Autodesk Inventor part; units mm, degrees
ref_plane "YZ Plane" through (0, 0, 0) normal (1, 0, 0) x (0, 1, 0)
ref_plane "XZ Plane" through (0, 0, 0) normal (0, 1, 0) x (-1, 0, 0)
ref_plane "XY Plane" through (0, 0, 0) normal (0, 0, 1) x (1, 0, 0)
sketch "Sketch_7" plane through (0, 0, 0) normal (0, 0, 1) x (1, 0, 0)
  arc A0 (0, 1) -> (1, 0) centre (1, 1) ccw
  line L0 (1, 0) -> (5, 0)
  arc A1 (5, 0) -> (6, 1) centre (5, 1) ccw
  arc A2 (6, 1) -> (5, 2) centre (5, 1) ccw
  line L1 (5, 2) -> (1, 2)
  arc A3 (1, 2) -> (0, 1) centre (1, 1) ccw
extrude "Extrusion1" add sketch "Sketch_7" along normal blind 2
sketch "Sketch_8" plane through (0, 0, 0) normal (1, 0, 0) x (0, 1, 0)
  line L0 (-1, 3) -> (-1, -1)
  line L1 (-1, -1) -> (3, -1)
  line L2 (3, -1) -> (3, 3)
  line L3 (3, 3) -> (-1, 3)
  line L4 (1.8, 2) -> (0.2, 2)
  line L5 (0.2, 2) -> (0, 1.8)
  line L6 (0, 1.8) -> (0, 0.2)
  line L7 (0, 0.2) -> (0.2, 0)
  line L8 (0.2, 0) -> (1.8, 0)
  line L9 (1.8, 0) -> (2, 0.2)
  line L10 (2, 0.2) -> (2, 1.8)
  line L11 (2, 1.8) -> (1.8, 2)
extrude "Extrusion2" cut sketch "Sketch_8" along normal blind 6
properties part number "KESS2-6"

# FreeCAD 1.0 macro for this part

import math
import FreeCAD as App
import Part
import Sketcher

V = App.Vector


def add_polygon(sketch, points):
    """Adds a closed chain of lines whose ends are joined by coincident constraints."""
    first, n = sketch.GeometryCount, len(points)
    for a, b in zip(points, points[1:] + points[:1]):
        sketch.addGeometry(Part.LineSegment(App.Vector(*a, 0), App.Vector(*b, 0)), False)
    for i in range(n):
        sketch.addConstraint(Sketcher.Constraint("Coincident", first + i, 2, first + (i + 1) % n, 1))

doc = App.newDocument("Part")
body = doc.addObject("PartDesign::Body", "Body")

# Sketch on XY plane
sketch1 = body.newObject("Sketcher::SketchObject", "Sketch")
sketch1.AttachmentSupport = (doc.getObject("XY_Plane"), [""])
sketch1.MapMode = "FlatFace"
sketch1.addGeometry([
    Part.ArcOfCircle(Part.Circle(V(1, 1, 0), V(0, 0, 1), 1), math.radians(90), math.radians(270)),
    Part.LineSegment(V(1, 0, 0), V(5, 0, 0)),
    Part.ArcOfCircle(Part.Circle(V(5, 1, 0), V(0, 0, 1), 1), math.radians(-90), math.radians(90)),
    Part.LineSegment(V(5, 2, 0), V(1, 2, 0)),
], False)
sketch1.addConstraint([
    Sketcher.Constraint("Tangent", 0, 2, 1, 1),
    Sketcher.Constraint("Tangent", 1, 2, 2, 1),
    Sketcher.Constraint("Tangent", 2, 2, 3, 1),
    Sketcher.Constraint("Tangent", 3, 2, 0, 1),
    Sketcher.Constraint("Horizontal", 1),
    Sketcher.Constraint("Horizontal", 3),
    Sketcher.Constraint("PointOnObject", 0, 2, -1),
    Sketcher.Constraint("Radius", 0, 1.0),
    Sketcher.Constraint("DistanceX", 1, 1, 1, 2, 4.0),
    Sketcher.Constraint("DistanceX", -1, 1, 0, 3, 1.0),
])
pad1 = body.newObject("PartDesign::Pad", "Pad")
pad1.Profile = sketch1
pad1.Length = 2

# Sketch on YZ plane
sketch2 = body.newObject("Sketcher::SketchObject", "Sketch001")
sketch2.AttachmentSupport = (doc.getObject("YZ_Plane"), [""])
sketch2.MapMode = "FlatFace"
add_polygon(sketch2, [(3, 3), (-1, 3), (-1, -1), (3, -1)])  # lines 0-3
add_polygon(sketch2, [(0.2, 2), (1.8, 2), (2, 1.8), (2, 0.2), (1.8, 0), (0.2, 0), (0, 0.2), (0, 1.8)])  # lines 4-11
sketch2.addConstraint([
    Sketcher.Constraint("Horizontal", 0),
    Sketcher.Constraint("Vertical", 1),
    Sketcher.Constraint("Horizontal", 2),
    Sketcher.Constraint("Vertical", 3),
    Sketcher.Constraint("Horizontal", 4),
    Sketcher.Constraint("Vertical", 6),
    Sketcher.Constraint("Horizontal", 8),
    Sketcher.Constraint("Vertical", 10),
    Sketcher.Constraint("PointOnObject", 7, 2, -1),
    Sketcher.Constraint("PointOnObject", 9, 2, -2),
    Sketcher.Constraint("Perpendicular", 5, 7),
    Sketcher.Constraint("Perpendicular", 7, 9),
    Sketcher.Constraint("Perpendicular", 9, 11),
    Sketcher.Constraint("Horizontal", 6, 2, 9, 2),
    Sketcher.Constraint("Horizontal", 5, 2, 10, 2),
    Sketcher.Constraint("Vertical", 4, 2, 7, 2),
    Sketcher.Constraint("Vertical", 8, 2, 11, 2),
    Sketcher.Constraint("Equal", 2, 1),
    Sketcher.Constraint("Equal", 8, 6),
    Sketcher.Constraint("DistanceX", 0, 2, 0, 1, 4.0),
    Sketcher.Constraint("DistanceX", 4, 1, 4, 2, 1.6),
    Sketcher.Constraint("DistanceX", 0, 2, -1, 1, 1.0),
    Sketcher.Constraint("DistanceY", -1, 1, 0, 2, 3.0),
    Sketcher.Constraint("DistanceY", -1, 1, 4, 2, 2.0),
])
pocket1 = body.newObject("PartDesign::Pocket", "Pocket")
pocket1.Profile = sketch2
pocket1.Length = 6
pocket1.Reversed = True

doc.recompute()
